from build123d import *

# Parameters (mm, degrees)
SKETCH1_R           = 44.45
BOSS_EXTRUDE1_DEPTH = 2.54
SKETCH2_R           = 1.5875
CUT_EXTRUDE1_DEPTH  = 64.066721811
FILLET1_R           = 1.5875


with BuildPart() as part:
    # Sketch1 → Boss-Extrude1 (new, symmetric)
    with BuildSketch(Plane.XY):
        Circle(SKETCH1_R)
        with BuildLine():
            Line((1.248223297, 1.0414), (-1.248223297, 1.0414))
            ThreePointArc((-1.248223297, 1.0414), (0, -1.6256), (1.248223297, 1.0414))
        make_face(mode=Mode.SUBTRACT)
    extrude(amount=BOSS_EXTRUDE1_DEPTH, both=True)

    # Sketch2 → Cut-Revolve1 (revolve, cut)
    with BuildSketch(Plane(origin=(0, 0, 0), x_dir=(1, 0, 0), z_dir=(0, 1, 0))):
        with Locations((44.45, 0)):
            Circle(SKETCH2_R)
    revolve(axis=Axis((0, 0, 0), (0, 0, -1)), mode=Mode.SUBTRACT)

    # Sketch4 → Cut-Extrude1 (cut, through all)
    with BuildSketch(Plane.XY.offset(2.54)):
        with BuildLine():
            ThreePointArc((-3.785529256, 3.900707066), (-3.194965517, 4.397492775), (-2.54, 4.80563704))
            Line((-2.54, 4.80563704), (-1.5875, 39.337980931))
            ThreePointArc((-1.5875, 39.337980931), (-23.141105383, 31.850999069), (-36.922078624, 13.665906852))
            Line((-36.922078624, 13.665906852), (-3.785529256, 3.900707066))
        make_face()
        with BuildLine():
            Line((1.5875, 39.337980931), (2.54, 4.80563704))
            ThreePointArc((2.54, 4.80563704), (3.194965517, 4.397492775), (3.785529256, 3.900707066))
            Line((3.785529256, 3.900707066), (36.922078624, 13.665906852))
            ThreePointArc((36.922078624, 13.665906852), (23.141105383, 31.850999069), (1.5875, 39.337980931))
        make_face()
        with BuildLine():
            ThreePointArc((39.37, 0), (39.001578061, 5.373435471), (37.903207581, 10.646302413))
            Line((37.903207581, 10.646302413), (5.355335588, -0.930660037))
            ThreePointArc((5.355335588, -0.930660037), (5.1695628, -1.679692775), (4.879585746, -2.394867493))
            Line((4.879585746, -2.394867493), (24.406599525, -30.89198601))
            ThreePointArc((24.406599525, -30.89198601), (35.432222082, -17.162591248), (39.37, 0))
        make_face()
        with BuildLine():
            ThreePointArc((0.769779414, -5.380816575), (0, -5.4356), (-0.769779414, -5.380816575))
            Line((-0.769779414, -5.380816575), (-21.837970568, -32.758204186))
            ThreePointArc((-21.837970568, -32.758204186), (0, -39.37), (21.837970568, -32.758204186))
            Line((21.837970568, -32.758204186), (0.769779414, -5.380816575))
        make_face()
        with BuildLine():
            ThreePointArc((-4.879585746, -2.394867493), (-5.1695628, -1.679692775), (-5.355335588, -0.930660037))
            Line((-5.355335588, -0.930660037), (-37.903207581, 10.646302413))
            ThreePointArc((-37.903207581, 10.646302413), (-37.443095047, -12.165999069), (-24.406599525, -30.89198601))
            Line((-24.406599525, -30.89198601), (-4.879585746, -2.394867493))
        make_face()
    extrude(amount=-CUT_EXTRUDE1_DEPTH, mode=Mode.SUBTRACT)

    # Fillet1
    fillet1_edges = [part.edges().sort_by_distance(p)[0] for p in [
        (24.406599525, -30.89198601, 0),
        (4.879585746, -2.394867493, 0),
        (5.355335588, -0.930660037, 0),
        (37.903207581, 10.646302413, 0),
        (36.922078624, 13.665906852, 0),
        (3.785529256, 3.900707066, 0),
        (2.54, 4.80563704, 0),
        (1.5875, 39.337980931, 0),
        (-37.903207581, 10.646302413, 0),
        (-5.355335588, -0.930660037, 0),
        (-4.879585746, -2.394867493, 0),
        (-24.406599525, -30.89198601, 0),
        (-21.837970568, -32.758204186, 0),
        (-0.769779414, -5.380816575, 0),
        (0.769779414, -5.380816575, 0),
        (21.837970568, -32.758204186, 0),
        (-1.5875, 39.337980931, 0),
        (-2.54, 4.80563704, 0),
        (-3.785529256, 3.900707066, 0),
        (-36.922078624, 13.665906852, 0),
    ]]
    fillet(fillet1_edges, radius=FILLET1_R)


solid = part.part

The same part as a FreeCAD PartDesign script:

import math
import FreeCAD as App
import Part
import Sketcher
Q = App.Units.Quantity


def edges_at(feature, points):
    """Names of the edges that pass closest to the given points."""
    edges = feature.Shape.Edges
    near = lambda p: min(range(len(edges)), key=lambda i: edges[i].distToShape(Part.Vertex(*p))[0])
    return sorted({f"Edge{near(p) + 1}" for p in points})

doc = App.newDocument("Part")
body = doc.addObject("PartDesign::Body", "Body")

sketch1 = body.newObject("Sketcher::SketchObject", "Sketch")
sketch1.AttachmentSupport = (doc.getObject("XY_Plane"), [""])
sketch1.MapMode = "FlatFace"
sketch1.addGeometry(Part.Circle(App.Vector(0, 0, 0), App.Vector(0, 0, 1), 44.5), False)
sketch1.addGeometry(Part.LineSegment(App.Vector(-1.2, 1, 0), App.Vector(1.2, 1, 0)), False)
sketch1.addGeometry(Part.ArcOfCircle(Part.Circle(App.Vector(0, 0, 0), App.Vector(0, 0, 1), 1.6), math.radians(140), math.radians(400)), False)
sketch1.addConstraint(Sketcher.Constraint("Coincident", 1, 1, 2, 1))
sketch1.addConstraint(Sketcher.Constraint("Coincident", 2, 2, 1, 2))
sketch1.addConstraint(Sketcher.Constraint("Horizontal", 1))
sketch1.addConstraint(Sketcher.Constraint("Coincident", 0, 3, -1, 1))
sketch1.addConstraint(Sketcher.Constraint("Coincident", 2, 3, -1, 1))
sketch1.addConstraint(Sketcher.Constraint("Diameter", 0, Q("3.5 in")))
sketch1.addConstraint(Sketcher.Constraint("Radius", 2, Q("0.064 in")))
sketch1.addConstraint(Sketcher.Constraint("DistanceY", -1, 1, 1, 1, Q("0.041 in")))
pad1 = body.newObject("PartDesign::Pad", "Pad")
pad1.Profile = sketch1
pad1.Length = Q("0.2 in")
pad1.Midplane = True

sketch2 = body.newObject("Sketcher::SketchObject", "Sketch001")
sketch2.AttachmentSupport = (doc.getObject("XZ_Plane"), [""])
sketch2.MapMode = "FlatFace"
sketch2.addGeometry(Part.Circle(App.Vector(44.5, 0, 0), App.Vector(0, 0, 1), 1.6), False)
sketch2.addConstraint(Sketcher.Constraint("PointOnObject", 0, 3, -1))
sketch2.addConstraint(Sketcher.Constraint("Diameter", 0, Q("0.125 in")))
sketch2.addConstraint(Sketcher.Constraint("DistanceX", -1, 1, 0, 3, Q("1.75 in")))
groove = body.newObject("PartDesign::Groove", "Groove")
groove.Profile = sketch2
groove.ReferenceAxis = (sketch2, ["V_Axis"])
groove.Angle = 360

sketch3 = body.newObject("Sketcher::SketchObject", "Sketch002")
sketch3.AttachmentSupport = (doc.getObject("XY_Plane"), [""])
sketch3.MapMode = "FlatFace"
sketch3.AttachmentOffset = App.Placement(App.Vector(0, 0, 0.1 * 25.4), App.Rotation())
sketch3.addGeometry(Part.ArcOfCircle(Part.Circle(App.Vector(0, 0, 0), App.Vector(0, 0, 1), 5.4), math.radians(117.86), math.radians(134.14)), False)
sketch3.addGeometry(Part.LineSegment(App.Vector(-2.5, 4.8, 0), App.Vector(-1.6, 39.3, 0)), False)
sketch3.addGeometry(Part.ArcOfCircle(Part.Circle(App.Vector(0, 0, 0), App.Vector(0, 0, 1), 39.4), math.radians(92), math.radians(160)), False)
sketch3.addGeometry(Part.LineSegment(App.Vector(-36.9, 13.7, 0), App.Vector(-3.8, 3.9, 0)), False)
sketch3.addGeometry(Part.LineSegment(App.Vector(1.6, 39.3, 0), App.Vector(2.5, 4.8, 0)), False)
sketch3.addGeometry(Part.ArcOfCircle(Part.Circle(App.Vector(0, 0, 0), App.Vector(0, 0, 1), 5.4), math.radians(45.86), math.radians(62.14)), False)
sketch3.addGeometry(Part.LineSegment(App.Vector(3.8, 3.9, 0), App.Vector(36.9, 13.7, 0)), False)
sketch3.addGeometry(Part.ArcOfCircle(Part.Circle(App.Vector(0, 0, 0), App.Vector(0, 0, 1), 39.4), math.radians(20), math.radians(88)), False)
sketch3.addGeometry(Part.ArcOfCircle(Part.Circle(App.Vector(0, 0, 0), App.Vector(0, 0, 1), 39.4), math.radians(0), math.radians(15.69)), False)
sketch3.addGeometry(Part.LineSegment(App.Vector(37.9, 10.6, 0), App.Vector(5.4, -0.9, 0)), False)
sketch3.addGeometry(Part.ArcOfCircle(Part.Circle(App.Vector(0, 0, 0), App.Vector(0, 0, 1), 5.4), math.radians(-26.14), math.radians(-9.86)), False)
sketch3.addGeometry(Part.LineSegment(App.Vector(4.9, -2.4, 0), App.Vector(24.4, -30.9, 0)), False)
sketch3.addGeometry(Part.ArcOfCircle(Part.Circle(App.Vector(0, 0, 0), App.Vector(0, 0, 1), 39.4), math.radians(-52), math.radians(0)), False)
sketch3.addGeometry(Part.ArcOfCircle(Part.Circle(App.Vector(0, 0, 0), App.Vector(0, 0, 1), 5.4), math.radians(-98.14), math.radians(-81.86)), False)
sketch3.addGeometry(Part.LineSegment(App.Vector(-0.8, -5.4, 0), App.Vector(-21.8, -32.8, 0)), False)
sketch3.addGeometry(Part.ArcOfCircle(Part.Circle(App.Vector(0, 0, 0), App.Vector(0, 0, 1), 39.4), math.radians(-124), math.radians(-56)), False)
sketch3.addGeometry(Part.LineSegment(App.Vector(21.8, -32.8, 0), App.Vector(0.8, -5.4, 0)), False)
sketch3.addGeometry(Part.ArcOfCircle(Part.Circle(App.Vector(0, 0, 0), App.Vector(0, 0, 1), 5.4), math.radians(-170.14), math.radians(-153.86)), False)
sketch3.addGeometry(Part.LineSegment(App.Vector(-5.4, -0.9, 0), App.Vector(-37.9, 10.6, 0)), False)
sketch3.addGeometry(Part.ArcOfCircle(Part.Circle(App.Vector(0, 0, 0), App.Vector(0, 0, 1), 39.4), math.radians(164), math.radians(232)), False)
sketch3.addGeometry(Part.LineSegment(App.Vector(-24.4, -30.9, 0), App.Vector(-4.9, -2.4, 0)), False)
sketch3.addConstraint(Sketcher.Constraint("Coincident", 0, 1, 1, 1))
sketch3.addConstraint(Sketcher.Constraint("Coincident", 1, 2, 2, 1))
sketch3.addConstraint(Sketcher.Constraint("Coincident", 2, 2, 3, 1))
sketch3.addConstraint(Sketcher.Constraint("Coincident", 3, 2, 0, 2))
sketch3.addConstraint(Sketcher.Constraint("Coincident", 4, 2, 5, 2))
sketch3.addConstraint(Sketcher.Constraint("Coincident", 5, 1, 6, 1))
sketch3.addConstraint(Sketcher.Constraint("Coincident", 6, 2, 7, 1))
sketch3.addConstraint(Sketcher.Constraint("Coincident", 7, 2, 4, 1))
sketch3.addConstraint(Sketcher.Constraint("Coincident", 8, 2, 9, 1))
sketch3.addConstraint(Sketcher.Constraint("Coincident", 9, 2, 10, 2))
sketch3.addConstraint(Sketcher.Constraint("Coincident", 10, 1, 11, 1))
sketch3.addConstraint(Sketcher.Constraint("Coincident", 11, 2, 12, 1))
sketch3.addConstraint(Sketcher.Constraint("Tangent", 12, 2, 8, 1))
sketch3.addConstraint(Sketcher.Constraint("Coincident", 13, 1, 14, 1))
sketch3.addConstraint(Sketcher.Constraint("Coincident", 14, 2, 15, 1))
sketch3.addConstraint(Sketcher.Constraint("Coincident", 15, 2, 16, 1))
sketch3.addConstraint(Sketcher.Constraint("Coincident", 16, 2, 13, 2))
sketch3.addConstraint(Sketcher.Constraint("Coincident", 17, 1, 18, 1))
sketch3.addConstraint(Sketcher.Constraint("Coincident", 18, 2, 19, 1))
sketch3.addConstraint(Sketcher.Constraint("Coincident", 19, 2, 20, 1))
sketch3.addConstraint(Sketcher.Constraint("Coincident", 20, 2, 17, 2))
sketch3.addConstraint(Sketcher.Constraint("Coincident", 0, 3, -1, 1))
sketch3.addConstraint(Sketcher.Constraint("Coincident", 2, 3, -1, 1))
sketch3.addConstraint(Sketcher.Constraint("Coincident", 5, 3, -1, 1))
sketch3.addConstraint(Sketcher.Constraint("Coincident", 7, 3, -1, 1))
sketch3.addConstraint(Sketcher.Constraint("Coincident", 8, 3, -1, 1))
sketch3.addConstraint(Sketcher.Constraint("Coincident", 10, 3, -1, 1))
sketch3.addConstraint(Sketcher.Constraint("Coincident", 13, 3, -1, 1))
sketch3.addConstraint(Sketcher.Constraint("Coincident", 15, 3, -1, 1))
sketch3.addConstraint(Sketcher.Constraint("Coincident", 17, 3, -1, 1))
sketch3.addConstraint(Sketcher.Constraint("Coincident", 19, 3, -1, 1))
sketch3.addConstraint(Sketcher.Constraint("Equal", 0, 5))
sketch3.addConstraint(Sketcher.Constraint("Equal", 2, 7))
sketch3.addConstraint(Sketcher.Constraint("Equal", 7, 8))
sketch3.addConstraint(Sketcher.Constraint("Equal", 5, 10))
sketch3.addConstraint(Sketcher.Constraint("Equal", 8, 12))
sketch3.addConstraint(Sketcher.Constraint("Equal", 10, 13))
sketch3.addConstraint(Sketcher.Constraint("Equal", 12, 15))
sketch3.addConstraint(Sketcher.Constraint("Equal", 13, 17))
sketch3.addConstraint(Sketcher.Constraint("Equal", 15, 19))
sketch3.addConstraint(Sketcher.Constraint("PointOnObject", 12, 2, -1))
sketch3.addConstraint(Sketcher.Constraint("Horizontal", 0, 1, 4, 2))
sketch3.addConstraint(Sketcher.Constraint("Horizontal", 3, 2, 5, 1))
sketch3.addConstraint(Sketcher.Constraint("Horizontal", 2, 2, 6, 2))
sketch3.addConstraint(Sketcher.Constraint("Horizontal", 1, 2, 7, 2))
sketch3.addConstraint(Sketcher.Constraint("Horizontal", 14, 2, 15, 2))
sketch3.addConstraint(Sketcher.Constraint("Horizontal", 13, 1, 16, 2))
sketch3.addConstraint(Sketcher.Constraint("Horizontal", 9, 2, 17, 1))
sketch3.addConstraint(Sketcher.Constraint("Horizontal", 8, 2, 18, 2))
sketch3.addConstraint(Sketcher.Constraint("Horizontal", 11, 2, 19, 2))
sketch3.addConstraint(Sketcher.Constraint("Horizontal", 10, 1, 20, 2))
sketch3.addConstraint(Sketcher.Constraint("Equal", 1, 3))
sketch3.addConstraint(Sketcher.Constraint("Equal", 6, 9))
sketch3.addConstraint(Sketcher.Constraint("Equal", 9, 11))
sketch3.addConstraint(Sketcher.Constraint("Equal", 11, 14))
sketch3.addConstraint(Sketcher.Constraint("Radius", 2, Q("1.55 in")))
sketch3.addConstraint(Sketcher.Constraint("Radius", 0, Q("0.214 in")))
sketch3.addConstraint(Sketcher.Constraint("DistanceX", 0, 1, -1, 1, Q("0.1 in")))
sketch3.addConstraint(Sketcher.Constraint("DistanceX", 1, 2, -1, 1, Q("0.0625 in")))
sketch3.addConstraint(Sketcher.Constraint("DistanceX", -1, 1, 11, 2, 24.4066))
sketch3.addConstraint(Sketcher.Constraint("DistanceY", 5, 1, 6, 2, 9.7652))
sketch3.addConstraint(Sketcher.Constraint("DistanceY", 9, 2, -1, 1, 0.93066))
sketch3.addConstraint(Sketcher.Constraint("DistanceX", 13, 1, -1, 1, 0.769779))
pocket1 = body.newObject("PartDesign::Pocket", "Pocket")
pocket1.Profile = sketch3
pocket1.Type = "ThroughAll"
doc.recompute()

fillet = body.newObject("PartDesign::Fillet", "Fillet")
fillet.Base = (pocket1, edges_at(pocket1, [
    (24.407, -30.892, 0),
    (4.88, -2.395, 0),
    (5.355, -0.931, 0),
    (37.903, 10.646, 0),
    (36.922, 13.666, 0),
    (3.786, 3.901, 0),
    (2.54, 4.806, 0),
    (1.587, 39.338, 0),
    (-37.903, 10.646, 0),
    (-5.355, -0.931, 0),
    (-4.88, -2.395, 0),
    (-24.407, -30.892, 0),
    (-21.838, -32.758, 0),
    (-0.77, -5.381, 0),
    (0.77, -5.381, 0),
    (21.838, -32.758, 0),
    (-1.587, 39.338, 0),
    (-2.54, 4.806, 0),
    (-3.786, 3.901, 0),
    (-36.922, 13.666, 0),
]))
fillet.Radius = Q("0.0625 in")

doc.recompute()
